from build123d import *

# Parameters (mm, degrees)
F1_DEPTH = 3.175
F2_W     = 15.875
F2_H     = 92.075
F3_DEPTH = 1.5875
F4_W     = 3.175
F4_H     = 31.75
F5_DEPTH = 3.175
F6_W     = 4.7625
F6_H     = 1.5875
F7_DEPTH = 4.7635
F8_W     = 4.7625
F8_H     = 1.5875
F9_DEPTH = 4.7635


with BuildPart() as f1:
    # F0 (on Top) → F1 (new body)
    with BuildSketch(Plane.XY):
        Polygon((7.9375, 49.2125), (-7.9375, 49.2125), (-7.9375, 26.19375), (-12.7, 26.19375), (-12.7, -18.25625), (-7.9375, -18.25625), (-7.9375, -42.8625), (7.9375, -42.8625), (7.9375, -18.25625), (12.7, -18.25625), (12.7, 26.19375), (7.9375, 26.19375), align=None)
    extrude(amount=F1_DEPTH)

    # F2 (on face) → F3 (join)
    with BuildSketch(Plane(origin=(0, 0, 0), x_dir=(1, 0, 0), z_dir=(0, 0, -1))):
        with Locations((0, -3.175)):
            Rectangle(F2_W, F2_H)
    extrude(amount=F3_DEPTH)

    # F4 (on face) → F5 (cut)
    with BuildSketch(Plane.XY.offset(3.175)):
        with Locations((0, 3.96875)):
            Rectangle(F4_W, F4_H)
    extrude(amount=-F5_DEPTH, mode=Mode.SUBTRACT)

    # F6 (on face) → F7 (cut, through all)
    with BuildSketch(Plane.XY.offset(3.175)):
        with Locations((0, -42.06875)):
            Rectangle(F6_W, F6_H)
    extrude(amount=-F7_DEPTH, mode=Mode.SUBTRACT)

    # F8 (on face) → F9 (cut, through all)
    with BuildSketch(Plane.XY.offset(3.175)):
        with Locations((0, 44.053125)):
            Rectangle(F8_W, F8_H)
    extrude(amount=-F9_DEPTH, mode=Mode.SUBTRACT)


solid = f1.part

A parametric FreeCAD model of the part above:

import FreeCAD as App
import Part
import Sketcher
from FreeCAD import Vector
Q = App.Units.Quantity

doc = App.newDocument("Part")
body = doc.addObject("PartDesign::Body", "Body")

# Sketch on XY plane
sketch1 = body.newObject("Sketcher::SketchObject", "Sketch")
sketch1.AttachmentSupport = (doc.getObject("XY_Plane"), [""])
sketch1.MapMode = "FlatFace"
sketch1.addGeometry([
    Part.LineSegment(Vector(7.9375, 49.2125, 0), Vector(-7.9375, 49.2125, 0)),  # 0
    Part.LineSegment(Vector(-7.9375, 49.2125, 0), Vector(-7.9375, 26.19375, 0)),  # 1
    Part.LineSegment(Vector(-7.9375, 26.19375, 0), Vector(-12.7, 26.19375, 0)),  # 2
    Part.LineSegment(Vector(-12.7, 26.19375, 0), Vector(-12.7, -18.25625, 0)),  # 3
    Part.LineSegment(Vector(-12.7, -18.25625, 0), Vector(-7.9375, -18.25625, 0)),  # 4
    Part.LineSegment(Vector(-7.9375, -18.25625, 0), Vector(-7.9375, -42.8625, 0)),  # 5
    Part.LineSegment(Vector(-7.9375, -42.8625, 0), Vector(7.9375, -42.8625, 0)),  # 6
    Part.LineSegment(Vector(7.9375, -42.8625, 0), Vector(7.9375, -18.25625, 0)),  # 7
    Part.LineSegment(Vector(7.9375, -18.25625, 0), Vector(12.7, -18.25625, 0)),  # 8
    Part.LineSegment(Vector(12.7, -18.25625, 0), Vector(12.7, 26.19375, 0)),  # 9
    Part.LineSegment(Vector(12.7, 26.19375, 0), Vector(7.9375, 26.19375, 0)),  # 10
    Part.LineSegment(Vector(7.9375, 26.19375, 0), Vector(7.9375, 49.2125, 0)),  # 11
], False)
sketch1.addConstraint([
    Sketcher.Constraint("Coincident", 0, 2, 1, 1),
    Sketcher.Constraint("Coincident", 1, 2, 2, 1),
    Sketcher.Constraint("Coincident", 2, 2, 3, 1),
    Sketcher.Constraint("Coincident", 3, 2, 4, 1),
    Sketcher.Constraint("Coincident", 4, 2, 5, 1),
    Sketcher.Constraint("Coincident", 5, 2, 6, 1),
    Sketcher.Constraint("Coincident", 6, 2, 7, 1),
    Sketcher.Constraint("Coincident", 7, 2, 8, 1),
    Sketcher.Constraint("Coincident", 8, 2, 9, 1),
    Sketcher.Constraint("Coincident", 9, 2, 10, 1),
    Sketcher.Constraint("Coincident", 10, 2, 11, 1),
    Sketcher.Constraint("Coincident", 11, 2, 0, 1),
    Sketcher.Constraint("Horizontal", 0),
    Sketcher.Constraint("Vertical", 1),
    Sketcher.Constraint("Horizontal", 2),
    Sketcher.Constraint("Vertical", 3),
    Sketcher.Constraint("Horizontal", 4),
    Sketcher.Constraint("Vertical", 5),
    Sketcher.Constraint("Horizontal", 6),
    Sketcher.Constraint("Vertical", 7),
    Sketcher.Constraint("Horizontal", 8),
    Sketcher.Constraint("Vertical", 9),
    Sketcher.Constraint("Horizontal", 10),
    Sketcher.Constraint("Vertical", 11),
    Sketcher.Constraint("Symmetric", 4, 2, 7, 2, -2),
    Sketcher.Constraint("Symmetric", 2, 2, 9, 2, -2),
    Sketcher.Constraint("Vertical", 1, 2, 4, 2),
    Sketcher.Constraint("Vertical", 7, 2, 10, 2),
    Sketcher.Constraint("DistanceX", 3, 2, 8, 2, Q("1 in")),
    Sketcher.Constraint("DistanceY", 3, 2, 3, 1, Q("1.75 in")),
    Sketcher.Constraint("DistanceX", 0, 2, 0, 1, Q("0.625 in")),
    Sketcher.Constraint("DistanceY", 1, 2, 1, 1, Q("0.90625 in")),
    Sketcher.Constraint("DistanceY", 5, 2, 5, 1, Q("0.96875 in")),
    Sketcher.Constraint("DistanceY", -1, 1, 0, 2, Q("1.9375 in")),
])
pad1 = body.newObject("PartDesign::Pad", "Pad")
pad1.Profile = sketch1
pad1.Length = Q("0.125 in")

# Sketch on XY plane
sketch2 = body.newObject("Sketcher::SketchObject", "Sketch001")
sketch2.AttachmentSupport = (doc.getObject("XY_Plane"), [""])
sketch2.MapMode = "FlatFace"
sketch2.addGeometry([
    Part.LineSegment(Vector(-7.9375, -42.8625, 0), Vector(-7.9375, 49.2125, 0)),
    Part.LineSegment(Vector(-7.9375, 49.2125, 0), Vector(7.9375, 49.2125, 0)),
    Part.LineSegment(Vector(7.9375, 49.2125, 0), Vector(7.9375, -42.8625, 0)),
    Part.LineSegment(Vector(7.9375, -42.8625, 0), Vector(-7.9375, -42.8625, 0)),
], False)
sketch2.addConstraint([
    Sketcher.Constraint("Coincident", 0, 2, 1, 1),
    Sketcher.Constraint("Coincident", 1, 2, 2, 1),
    Sketcher.Constraint("Coincident", 2, 2, 3, 1),
    Sketcher.Constraint("Coincident", 3, 2, 0, 1),
    Sketcher.Constraint("Vertical", 0),
    Sketcher.Constraint("Horizontal", 1),
    Sketcher.Constraint("Vertical", 2),
    Sketcher.Constraint("Horizontal", 3),
    Sketcher.Constraint("DistanceX", 1, 1, 1, 2, Q("0.625 in")),
    Sketcher.Constraint("DistanceY", 0, 1, 0, 2, Q("3.625 in")),
    Sketcher.Constraint("DistanceX", 0, 2, -1, 1, Q("0.3125 in")),
    Sketcher.Constraint("DistanceY", -1, 1, 0, 2, Q("1.9375 in")),
])
pad2 = body.newObject("PartDesign::Pad", "Pad001")
pad2.Profile = sketch2
pad2.Length = Q("0.0625 in")
pad2.Reversed = True

# Sketch on XY plane
sketch3 = body.newObject("Sketcher::SketchObject", "Sketch002")
sketch3.AttachmentSupport = (doc.getObject("XY_Plane"), [""])
sketch3.MapMode = "FlatFace"
sketch3.AttachmentOffset = App.Placement(Vector(0, 0, 0.125 * 25.4), App.Rotation())
sketch3.addGeometry([
    Part.LineSegment(Vector(-1.5875, 19.84375, 0), Vector(-1.5875, -11.90625, 0)),
    Part.LineSegment(Vector(-1.5875, -11.90625, 0), Vector(1.5875, -11.90625, 0)),
    Part.LineSegment(Vector(1.5875, -11.90625, 0), Vector(1.5875, 19.84375, 0)),
    Part.LineSegment(Vector(1.5875, 19.84375, 0), Vector(-1.5875, 19.84375, 0)),
], False)
sketch3.addConstraint([
    Sketcher.Constraint("Coincident", 0, 2, 1, 1),
    Sketcher.Constraint("Coincident", 1, 2, 2, 1),
    Sketcher.Constraint("Coincident", 2, 2, 3, 1),
    Sketcher.Constraint("Coincident", 3, 2, 0, 1),
    Sketcher.Constraint("Vertical", 0),
    Sketcher.Constraint("Horizontal", 1),
    Sketcher.Constraint("Vertical", 2),
    Sketcher.Constraint("Horizontal", 3),
    Sketcher.Constraint("DistanceY", 0, 2, 0, 1, Q("1.25 in")),
    Sketcher.Constraint("DistanceX", 1, 1, 1, 2, Q("0.125 in")),
    Sketcher.Constraint("DistanceX", 0, 2, -1, 1, Q("0.0625 in")),
    Sketcher.Constraint("DistanceY", 0, 2, -1, 1, Q("0.46875 in")),
])
pocket1 = body.newObject("PartDesign::Pocket", "Pocket")
pocket1.Profile = sketch3
pocket1.Length = Q("0.125 in")

# Sketch on XY plane
sketch4 = body.newObject("Sketcher::SketchObject", "Sketch003")
sketch4.AttachmentSupport = (doc.getObject("XY_Plane"), [""])
sketch4.MapMode = "FlatFace"
sketch4.AttachmentOffset = App.Placement(Vector(0, 0, 0.125 * 25.4), App.Rotation())
sketch4.addGeometry([
    Part.LineSegment(Vector(-2.38125, -41.275, 0), Vector(-2.38125, -42.8625, 0)),
    Part.LineSegment(Vector(-2.38125, -42.8625, 0), Vector(2.38125, -42.8625, 0)),
    Part.LineSegment(Vector(2.38125, -42.8625, 0), Vector(2.38125, -41.275, 0)),
    Part.LineSegment(Vector(2.38125, -41.275, 0), Vector(-2.38125, -41.275, 0)),
], False)
sketch4.addConstraint([
    Sketcher.Constraint("Coincident", 0, 2, 1, 1),
    Sketcher.Constraint("Coincident", 1, 2, 2, 1),
    Sketcher.Constraint("Coincident", 2, 2, 3, 1),
    Sketcher.Constraint("Coincident", 3, 2, 0, 1),
    Sketcher.Constraint("Vertical", 0),
    Sketcher.Constraint("Horizontal", 1),
    Sketcher.Constraint("Vertical", 2),
    Sketcher.Constraint("Horizontal", 3),
    Sketcher.Constraint("DistanceX", 1, 1, 1, 2, Q("0.1875 in")),
    Sketcher.Constraint("DistanceY", 0, 2, 0, 1, Q("0.0625 in")),
    Sketcher.Constraint("DistanceX", 0, 2, -1, 1, Q("0.09375 in")),
    Sketcher.Constraint("DistanceY", 0, 2, -1, 1, Q("1.6875 in")),
])
pocket2 = body.newObject("PartDesign::Pocket", "Pocket001")
pocket2.Profile = sketch4
pocket2.Type = "ThroughAll"

# Sketch on XY plane
sketch5 = body.newObject("Sketcher::SketchObject", "Sketch004")
sketch5.AttachmentSupport = (doc.getObject("XY_Plane"), [""])
sketch5.MapMode = "FlatFace"
sketch5.AttachmentOffset = App.Placement(Vector(0, 0, 0.125 * 25.4), App.Rotation())
sketch5.addGeometry([
    Part.LineSegment(Vector(-2.38125, 44.846875, 0), Vector(-2.38125, 43.259375, 0)),
    Part.LineSegment(Vector(-2.38125, 43.259375, 0), Vector(2.38125, 43.259375, 0)),
    Part.LineSegment(Vector(2.38125, 43.259375, 0), Vector(2.38125, 44.846875, 0)),
    Part.LineSegment(Vector(2.38125, 44.846875, 0), Vector(-2.38125, 44.846875, 0)),
], False)
sketch5.addConstraint([
    Sketcher.Constraint("Coincident", 0, 2, 1, 1),
    Sketcher.Constraint("Coincident", 1, 2, 2, 1),
    Sketcher.Constraint("Coincident", 2, 2, 3, 1),
    Sketcher.Constraint("Coincident", 3, 2, 0, 1),
    Sketcher.Constraint("Vertical", 0),
    Sketcher.Constraint("Horizontal", 1),
    Sketcher.Constraint("Vertical", 2),
    Sketcher.Constraint("Horizontal", 3),
    Sketcher.Constraint("DistanceX", 1, 1, 1, 2, Q("0.1875 in")),
    Sketcher.Constraint("DistanceY", 0, 2, 0, 1, Q("0.0625 in")),
    Sketcher.Constraint("DistanceX", 0, 2, -1, 1, Q("0.09375 in")),
    Sketcher.Constraint("DistanceY", -1, 1, 0, 2, Q("1.703125 in")),
])
pocket3 = body.newObject("PartDesign::Pocket", "Pocket002")
pocket3.Profile = sketch5
pocket3.Type = "ThroughAll"

doc.recompute()
